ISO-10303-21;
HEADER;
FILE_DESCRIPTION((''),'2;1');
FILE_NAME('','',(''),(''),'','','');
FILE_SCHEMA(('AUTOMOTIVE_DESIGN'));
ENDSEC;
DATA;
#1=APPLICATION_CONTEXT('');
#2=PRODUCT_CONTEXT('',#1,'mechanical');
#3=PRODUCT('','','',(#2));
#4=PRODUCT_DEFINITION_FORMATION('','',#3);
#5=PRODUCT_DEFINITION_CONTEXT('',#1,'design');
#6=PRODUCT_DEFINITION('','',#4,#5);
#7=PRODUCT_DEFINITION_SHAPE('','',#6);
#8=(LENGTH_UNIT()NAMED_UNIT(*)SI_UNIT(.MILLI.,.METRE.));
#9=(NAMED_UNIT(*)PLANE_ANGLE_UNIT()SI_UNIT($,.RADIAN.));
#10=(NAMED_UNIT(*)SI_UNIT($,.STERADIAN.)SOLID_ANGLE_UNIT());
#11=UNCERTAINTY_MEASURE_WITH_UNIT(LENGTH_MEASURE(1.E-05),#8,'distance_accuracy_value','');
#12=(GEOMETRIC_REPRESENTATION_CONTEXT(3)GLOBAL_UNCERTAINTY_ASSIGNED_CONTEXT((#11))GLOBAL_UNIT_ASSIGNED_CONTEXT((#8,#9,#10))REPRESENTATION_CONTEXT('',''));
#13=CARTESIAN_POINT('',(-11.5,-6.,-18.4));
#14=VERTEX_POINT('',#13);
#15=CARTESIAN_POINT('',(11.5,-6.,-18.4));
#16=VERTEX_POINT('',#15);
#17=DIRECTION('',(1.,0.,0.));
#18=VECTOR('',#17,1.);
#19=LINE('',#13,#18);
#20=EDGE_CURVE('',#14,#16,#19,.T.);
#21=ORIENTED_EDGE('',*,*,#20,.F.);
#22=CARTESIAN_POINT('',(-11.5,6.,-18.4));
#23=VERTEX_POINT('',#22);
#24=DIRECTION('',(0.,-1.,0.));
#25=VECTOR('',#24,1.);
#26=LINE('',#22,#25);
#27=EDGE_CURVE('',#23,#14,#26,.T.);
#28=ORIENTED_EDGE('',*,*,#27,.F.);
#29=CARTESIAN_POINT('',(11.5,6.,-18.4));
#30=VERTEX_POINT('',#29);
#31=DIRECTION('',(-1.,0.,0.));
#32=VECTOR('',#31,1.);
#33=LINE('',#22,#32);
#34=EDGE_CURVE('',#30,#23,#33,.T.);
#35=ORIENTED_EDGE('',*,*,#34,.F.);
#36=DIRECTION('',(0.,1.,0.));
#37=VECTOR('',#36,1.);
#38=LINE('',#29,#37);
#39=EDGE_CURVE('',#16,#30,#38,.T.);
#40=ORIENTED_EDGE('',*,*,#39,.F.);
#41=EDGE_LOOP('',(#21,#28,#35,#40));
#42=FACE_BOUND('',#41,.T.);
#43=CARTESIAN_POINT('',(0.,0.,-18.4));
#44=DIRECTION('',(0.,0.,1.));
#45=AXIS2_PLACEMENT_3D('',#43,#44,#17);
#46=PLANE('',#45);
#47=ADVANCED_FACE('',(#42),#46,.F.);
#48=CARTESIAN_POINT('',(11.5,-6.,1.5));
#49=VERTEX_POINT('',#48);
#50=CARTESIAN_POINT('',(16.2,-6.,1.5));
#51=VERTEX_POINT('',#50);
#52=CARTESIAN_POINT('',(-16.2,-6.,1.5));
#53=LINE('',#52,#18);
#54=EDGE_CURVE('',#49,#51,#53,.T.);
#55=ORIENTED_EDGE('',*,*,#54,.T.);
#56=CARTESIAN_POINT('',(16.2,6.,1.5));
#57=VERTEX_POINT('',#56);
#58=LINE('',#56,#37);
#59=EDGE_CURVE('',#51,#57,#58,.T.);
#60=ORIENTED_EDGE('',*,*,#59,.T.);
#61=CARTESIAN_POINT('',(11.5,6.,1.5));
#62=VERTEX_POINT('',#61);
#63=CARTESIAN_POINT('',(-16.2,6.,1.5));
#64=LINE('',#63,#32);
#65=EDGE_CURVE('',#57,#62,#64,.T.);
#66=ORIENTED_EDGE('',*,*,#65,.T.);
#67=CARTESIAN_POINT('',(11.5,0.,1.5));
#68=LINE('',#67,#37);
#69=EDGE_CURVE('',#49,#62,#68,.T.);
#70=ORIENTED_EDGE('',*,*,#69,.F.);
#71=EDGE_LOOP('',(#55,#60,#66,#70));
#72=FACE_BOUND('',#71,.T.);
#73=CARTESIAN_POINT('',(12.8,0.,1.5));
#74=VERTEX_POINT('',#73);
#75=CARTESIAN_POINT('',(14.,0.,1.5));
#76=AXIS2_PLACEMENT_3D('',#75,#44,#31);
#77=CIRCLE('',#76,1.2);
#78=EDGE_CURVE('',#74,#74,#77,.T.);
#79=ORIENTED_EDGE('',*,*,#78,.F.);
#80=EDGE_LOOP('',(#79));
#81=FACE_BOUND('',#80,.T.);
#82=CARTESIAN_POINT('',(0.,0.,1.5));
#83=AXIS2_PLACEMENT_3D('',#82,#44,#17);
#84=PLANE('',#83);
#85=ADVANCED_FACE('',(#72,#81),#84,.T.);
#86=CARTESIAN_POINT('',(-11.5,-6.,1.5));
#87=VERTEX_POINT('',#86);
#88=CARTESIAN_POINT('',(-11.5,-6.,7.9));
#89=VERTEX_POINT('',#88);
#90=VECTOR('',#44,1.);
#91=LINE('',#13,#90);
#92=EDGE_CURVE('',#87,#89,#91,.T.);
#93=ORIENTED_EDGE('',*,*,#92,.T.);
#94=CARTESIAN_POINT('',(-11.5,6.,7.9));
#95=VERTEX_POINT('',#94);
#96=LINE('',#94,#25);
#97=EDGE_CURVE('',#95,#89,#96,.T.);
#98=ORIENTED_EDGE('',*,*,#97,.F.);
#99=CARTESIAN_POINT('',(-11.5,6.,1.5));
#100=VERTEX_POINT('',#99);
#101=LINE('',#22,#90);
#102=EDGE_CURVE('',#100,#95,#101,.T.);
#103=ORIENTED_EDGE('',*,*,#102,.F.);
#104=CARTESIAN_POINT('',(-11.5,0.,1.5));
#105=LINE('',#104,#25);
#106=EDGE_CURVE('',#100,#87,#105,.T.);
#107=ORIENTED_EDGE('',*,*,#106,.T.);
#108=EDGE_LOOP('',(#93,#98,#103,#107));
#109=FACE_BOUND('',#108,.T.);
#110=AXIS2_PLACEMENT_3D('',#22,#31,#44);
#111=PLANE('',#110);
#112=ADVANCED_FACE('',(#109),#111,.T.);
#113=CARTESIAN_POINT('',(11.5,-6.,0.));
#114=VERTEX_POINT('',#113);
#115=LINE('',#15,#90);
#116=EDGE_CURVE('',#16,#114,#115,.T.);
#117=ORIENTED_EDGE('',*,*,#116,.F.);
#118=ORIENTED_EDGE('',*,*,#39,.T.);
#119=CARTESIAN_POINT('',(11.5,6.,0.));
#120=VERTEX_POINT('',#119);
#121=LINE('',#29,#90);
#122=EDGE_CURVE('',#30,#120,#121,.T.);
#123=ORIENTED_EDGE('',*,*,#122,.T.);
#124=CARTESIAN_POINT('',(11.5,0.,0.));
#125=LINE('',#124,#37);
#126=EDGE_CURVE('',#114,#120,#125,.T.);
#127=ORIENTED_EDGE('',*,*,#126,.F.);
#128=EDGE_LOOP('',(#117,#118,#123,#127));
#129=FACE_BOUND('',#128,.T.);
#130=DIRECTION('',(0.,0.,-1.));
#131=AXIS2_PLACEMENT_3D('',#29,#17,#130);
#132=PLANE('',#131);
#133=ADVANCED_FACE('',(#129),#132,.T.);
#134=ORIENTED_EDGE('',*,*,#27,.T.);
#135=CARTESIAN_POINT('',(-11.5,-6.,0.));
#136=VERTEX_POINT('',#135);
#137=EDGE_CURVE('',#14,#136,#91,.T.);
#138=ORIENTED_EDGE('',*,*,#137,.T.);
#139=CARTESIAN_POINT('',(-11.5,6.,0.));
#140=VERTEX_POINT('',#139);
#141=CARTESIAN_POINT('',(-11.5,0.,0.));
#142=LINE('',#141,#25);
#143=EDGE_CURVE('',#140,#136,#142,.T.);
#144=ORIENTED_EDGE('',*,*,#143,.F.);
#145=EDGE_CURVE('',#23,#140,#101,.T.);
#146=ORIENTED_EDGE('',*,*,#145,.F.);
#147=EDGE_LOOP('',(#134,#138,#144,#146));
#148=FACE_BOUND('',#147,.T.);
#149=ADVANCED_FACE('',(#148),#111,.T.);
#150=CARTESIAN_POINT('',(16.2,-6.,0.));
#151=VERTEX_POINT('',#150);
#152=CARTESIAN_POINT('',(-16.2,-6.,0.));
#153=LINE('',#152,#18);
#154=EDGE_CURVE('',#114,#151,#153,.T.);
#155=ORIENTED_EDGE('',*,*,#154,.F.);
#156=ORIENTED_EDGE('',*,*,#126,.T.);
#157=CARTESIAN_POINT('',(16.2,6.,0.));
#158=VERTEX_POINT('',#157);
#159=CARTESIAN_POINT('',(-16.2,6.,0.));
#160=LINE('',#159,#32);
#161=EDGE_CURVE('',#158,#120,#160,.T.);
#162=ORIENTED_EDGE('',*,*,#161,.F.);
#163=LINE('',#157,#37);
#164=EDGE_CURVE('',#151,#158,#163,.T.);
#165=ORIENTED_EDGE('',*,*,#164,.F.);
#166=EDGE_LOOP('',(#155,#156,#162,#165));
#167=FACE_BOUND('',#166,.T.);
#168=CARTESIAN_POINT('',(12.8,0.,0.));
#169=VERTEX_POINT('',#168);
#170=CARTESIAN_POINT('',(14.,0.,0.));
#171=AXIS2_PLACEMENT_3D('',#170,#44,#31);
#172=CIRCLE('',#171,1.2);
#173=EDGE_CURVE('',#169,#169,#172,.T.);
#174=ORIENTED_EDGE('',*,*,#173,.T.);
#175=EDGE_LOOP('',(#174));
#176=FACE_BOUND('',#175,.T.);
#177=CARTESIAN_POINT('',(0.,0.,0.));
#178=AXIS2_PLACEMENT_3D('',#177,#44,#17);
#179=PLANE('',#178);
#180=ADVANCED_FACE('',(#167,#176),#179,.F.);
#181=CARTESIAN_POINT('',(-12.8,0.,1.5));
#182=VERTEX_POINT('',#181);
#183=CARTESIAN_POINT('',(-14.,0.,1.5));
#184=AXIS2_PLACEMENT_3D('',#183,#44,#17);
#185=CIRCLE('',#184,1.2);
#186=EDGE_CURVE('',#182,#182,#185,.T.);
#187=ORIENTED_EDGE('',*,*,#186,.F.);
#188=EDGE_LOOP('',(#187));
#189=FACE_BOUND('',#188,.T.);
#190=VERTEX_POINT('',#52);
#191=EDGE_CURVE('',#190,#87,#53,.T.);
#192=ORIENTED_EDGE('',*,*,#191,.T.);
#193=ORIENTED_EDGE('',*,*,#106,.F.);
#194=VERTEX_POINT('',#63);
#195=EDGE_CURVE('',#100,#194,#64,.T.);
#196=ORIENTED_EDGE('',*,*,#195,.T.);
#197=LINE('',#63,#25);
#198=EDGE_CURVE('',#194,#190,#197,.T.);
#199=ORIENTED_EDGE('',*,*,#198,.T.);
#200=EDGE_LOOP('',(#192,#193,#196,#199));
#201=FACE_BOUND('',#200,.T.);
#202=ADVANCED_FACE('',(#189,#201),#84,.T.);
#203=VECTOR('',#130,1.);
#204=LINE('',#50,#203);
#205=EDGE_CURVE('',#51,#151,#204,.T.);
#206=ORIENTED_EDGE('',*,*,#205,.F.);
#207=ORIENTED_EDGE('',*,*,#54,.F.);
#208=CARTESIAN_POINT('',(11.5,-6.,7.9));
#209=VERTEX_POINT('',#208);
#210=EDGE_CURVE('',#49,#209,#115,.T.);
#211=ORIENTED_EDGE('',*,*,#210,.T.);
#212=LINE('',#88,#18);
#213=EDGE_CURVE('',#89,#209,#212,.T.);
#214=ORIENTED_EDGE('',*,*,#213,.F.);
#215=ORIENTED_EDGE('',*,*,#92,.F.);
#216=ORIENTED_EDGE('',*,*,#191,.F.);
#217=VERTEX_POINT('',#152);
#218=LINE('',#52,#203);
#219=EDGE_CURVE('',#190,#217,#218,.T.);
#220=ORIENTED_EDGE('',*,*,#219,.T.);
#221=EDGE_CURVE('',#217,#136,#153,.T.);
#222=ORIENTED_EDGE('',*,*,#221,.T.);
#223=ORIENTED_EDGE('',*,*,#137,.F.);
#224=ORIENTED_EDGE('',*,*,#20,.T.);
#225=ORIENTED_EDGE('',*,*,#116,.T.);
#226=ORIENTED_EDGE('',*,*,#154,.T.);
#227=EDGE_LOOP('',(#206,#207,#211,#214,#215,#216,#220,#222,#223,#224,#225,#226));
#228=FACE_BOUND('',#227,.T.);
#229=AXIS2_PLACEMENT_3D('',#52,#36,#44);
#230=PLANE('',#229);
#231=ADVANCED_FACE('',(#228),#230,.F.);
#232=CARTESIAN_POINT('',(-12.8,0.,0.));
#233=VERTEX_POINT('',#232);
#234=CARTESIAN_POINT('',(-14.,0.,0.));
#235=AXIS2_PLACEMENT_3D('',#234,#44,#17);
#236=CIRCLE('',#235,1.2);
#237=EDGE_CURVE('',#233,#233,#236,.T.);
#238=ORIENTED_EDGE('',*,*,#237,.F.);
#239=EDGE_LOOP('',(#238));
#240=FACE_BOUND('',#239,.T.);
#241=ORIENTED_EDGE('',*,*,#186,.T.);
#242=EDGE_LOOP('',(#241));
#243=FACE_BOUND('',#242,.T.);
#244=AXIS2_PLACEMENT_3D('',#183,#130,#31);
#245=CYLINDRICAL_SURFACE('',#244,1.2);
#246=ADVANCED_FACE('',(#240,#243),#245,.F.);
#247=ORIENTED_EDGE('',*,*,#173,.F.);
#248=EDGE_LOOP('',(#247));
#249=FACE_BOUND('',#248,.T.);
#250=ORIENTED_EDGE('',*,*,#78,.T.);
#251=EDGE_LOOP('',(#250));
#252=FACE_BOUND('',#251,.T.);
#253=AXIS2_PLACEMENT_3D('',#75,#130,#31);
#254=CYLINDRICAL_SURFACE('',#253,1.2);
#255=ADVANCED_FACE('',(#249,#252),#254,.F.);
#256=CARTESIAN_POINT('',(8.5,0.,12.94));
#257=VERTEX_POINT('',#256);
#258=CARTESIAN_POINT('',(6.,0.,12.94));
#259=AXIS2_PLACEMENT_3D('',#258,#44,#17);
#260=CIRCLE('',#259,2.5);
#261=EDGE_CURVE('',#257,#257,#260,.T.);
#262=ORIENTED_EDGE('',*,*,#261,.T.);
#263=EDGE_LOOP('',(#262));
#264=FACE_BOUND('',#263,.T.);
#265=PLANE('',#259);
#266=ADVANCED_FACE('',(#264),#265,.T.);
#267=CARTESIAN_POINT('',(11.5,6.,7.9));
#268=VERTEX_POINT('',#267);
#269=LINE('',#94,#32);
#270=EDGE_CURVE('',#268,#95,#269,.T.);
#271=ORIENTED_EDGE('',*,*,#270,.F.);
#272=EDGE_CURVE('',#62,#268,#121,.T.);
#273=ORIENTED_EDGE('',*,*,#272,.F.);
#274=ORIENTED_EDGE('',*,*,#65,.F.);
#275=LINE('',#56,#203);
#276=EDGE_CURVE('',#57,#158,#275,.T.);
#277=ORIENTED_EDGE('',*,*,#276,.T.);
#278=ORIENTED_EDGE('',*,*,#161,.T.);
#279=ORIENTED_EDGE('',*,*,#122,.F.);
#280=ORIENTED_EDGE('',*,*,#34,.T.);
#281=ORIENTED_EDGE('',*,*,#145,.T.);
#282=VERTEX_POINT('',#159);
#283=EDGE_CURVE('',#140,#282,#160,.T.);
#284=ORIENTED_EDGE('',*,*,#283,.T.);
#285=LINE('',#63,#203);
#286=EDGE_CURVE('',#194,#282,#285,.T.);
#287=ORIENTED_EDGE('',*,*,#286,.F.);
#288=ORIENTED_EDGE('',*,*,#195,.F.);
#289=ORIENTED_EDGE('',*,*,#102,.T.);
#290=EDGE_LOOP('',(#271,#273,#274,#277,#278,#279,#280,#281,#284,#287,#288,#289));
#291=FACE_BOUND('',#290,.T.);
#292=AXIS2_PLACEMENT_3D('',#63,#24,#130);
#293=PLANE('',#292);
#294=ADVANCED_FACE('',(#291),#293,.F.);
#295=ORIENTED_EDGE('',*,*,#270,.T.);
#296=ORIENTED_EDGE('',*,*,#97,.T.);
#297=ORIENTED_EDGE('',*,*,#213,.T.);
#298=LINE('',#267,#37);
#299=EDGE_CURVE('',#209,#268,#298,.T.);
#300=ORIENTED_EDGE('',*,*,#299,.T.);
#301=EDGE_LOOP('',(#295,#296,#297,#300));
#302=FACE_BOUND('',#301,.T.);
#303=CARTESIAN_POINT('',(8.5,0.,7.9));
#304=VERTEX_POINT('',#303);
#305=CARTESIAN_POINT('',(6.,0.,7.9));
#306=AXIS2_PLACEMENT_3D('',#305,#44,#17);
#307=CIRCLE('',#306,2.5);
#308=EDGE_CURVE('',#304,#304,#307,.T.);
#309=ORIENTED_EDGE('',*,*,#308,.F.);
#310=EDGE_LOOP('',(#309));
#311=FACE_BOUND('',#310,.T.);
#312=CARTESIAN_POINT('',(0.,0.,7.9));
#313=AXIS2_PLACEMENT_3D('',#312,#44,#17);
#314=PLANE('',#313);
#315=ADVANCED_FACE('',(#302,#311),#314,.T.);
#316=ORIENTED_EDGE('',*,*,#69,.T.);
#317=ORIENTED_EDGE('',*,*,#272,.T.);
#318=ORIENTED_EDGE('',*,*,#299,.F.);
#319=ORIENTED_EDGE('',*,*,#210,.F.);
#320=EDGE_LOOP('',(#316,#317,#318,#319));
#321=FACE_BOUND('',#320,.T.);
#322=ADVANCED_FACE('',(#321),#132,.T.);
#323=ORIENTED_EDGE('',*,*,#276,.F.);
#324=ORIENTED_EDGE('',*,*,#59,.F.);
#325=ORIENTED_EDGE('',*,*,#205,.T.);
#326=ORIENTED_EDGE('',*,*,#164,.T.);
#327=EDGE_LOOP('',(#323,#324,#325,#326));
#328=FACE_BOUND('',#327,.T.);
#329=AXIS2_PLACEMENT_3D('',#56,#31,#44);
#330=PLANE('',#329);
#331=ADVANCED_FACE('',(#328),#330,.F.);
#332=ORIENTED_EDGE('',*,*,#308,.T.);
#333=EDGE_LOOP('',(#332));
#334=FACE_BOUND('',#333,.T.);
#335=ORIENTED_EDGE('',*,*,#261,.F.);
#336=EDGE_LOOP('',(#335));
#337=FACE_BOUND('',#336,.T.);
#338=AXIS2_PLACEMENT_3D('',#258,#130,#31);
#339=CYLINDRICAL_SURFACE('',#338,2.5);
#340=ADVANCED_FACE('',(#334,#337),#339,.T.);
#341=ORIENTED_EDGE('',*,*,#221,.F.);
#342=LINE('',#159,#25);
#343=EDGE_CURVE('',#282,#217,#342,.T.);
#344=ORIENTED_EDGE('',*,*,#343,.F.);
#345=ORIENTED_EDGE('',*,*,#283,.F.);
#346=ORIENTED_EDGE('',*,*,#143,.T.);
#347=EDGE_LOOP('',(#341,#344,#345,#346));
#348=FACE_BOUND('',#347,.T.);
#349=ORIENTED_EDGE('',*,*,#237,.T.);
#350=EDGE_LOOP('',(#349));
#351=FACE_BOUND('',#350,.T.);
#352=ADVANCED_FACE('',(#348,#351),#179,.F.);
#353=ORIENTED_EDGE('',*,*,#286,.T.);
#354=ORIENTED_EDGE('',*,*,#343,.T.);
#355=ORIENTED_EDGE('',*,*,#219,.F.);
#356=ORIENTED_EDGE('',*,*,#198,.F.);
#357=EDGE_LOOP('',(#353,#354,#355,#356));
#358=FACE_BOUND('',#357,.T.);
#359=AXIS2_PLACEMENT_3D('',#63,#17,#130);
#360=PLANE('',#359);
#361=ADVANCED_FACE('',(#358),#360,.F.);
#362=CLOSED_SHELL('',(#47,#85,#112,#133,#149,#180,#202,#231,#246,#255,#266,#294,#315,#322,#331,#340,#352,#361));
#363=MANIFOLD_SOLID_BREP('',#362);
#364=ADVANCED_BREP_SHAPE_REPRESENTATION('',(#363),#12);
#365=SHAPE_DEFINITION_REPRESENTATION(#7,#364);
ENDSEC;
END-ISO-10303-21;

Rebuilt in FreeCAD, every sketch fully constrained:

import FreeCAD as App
import Part
import Sketcher
from FreeCAD import Vector
Q = App.Units.Quantity

doc = App.newDocument("Part")
body = doc.addObject("PartDesign::Body", "Body")

sketch1 = body.newObject("Sketcher::SketchObject", "Sketch")
sketch1.AttachmentSupport = (doc.getObject("XY_Plane"), [""])
sketch1.MapMode = "FlatFace"
sketch1.addGeometry(Part.LineSegment(Vector(-16.2, 6, 0), Vector(-16.2, -6, 0)), False)
sketch1.addGeometry(Part.LineSegment(Vector(-16.2, -6, 0), Vector(16.2, -6, 0)), False)
sketch1.addGeometry(Part.LineSegment(Vector(16.2, -6, 0), Vector(16.2, 6, 0)), False)
sketch1.addGeometry(Part.LineSegment(Vector(16.2, 6, 0), Vector(-16.2, 6, 0)), False)
sketch1.addGeometry(Part.Circle(Vector(-14, 0, 0), Vector(0, 0, 1), 1.2), False)
sketch1.addGeometry(Part.Circle(Vector(14, 0, 0), Vector(0, 0, 1), 1.2), False)
sketch1.addConstraint(Sketcher.Constraint("Coincident", 0, 2, 1, 1))
sketch1.addConstraint(Sketcher.Constraint("Coincident", 1, 2, 2, 1))
sketch1.addConstraint(Sketcher.Constraint("Coincident", 2, 2, 3, 1))
sketch1.addConstraint(Sketcher.Constraint("Coincident", 3, 2, 0, 1))
sketch1.addConstraint(Sketcher.Constraint("Vertical", 0))
sketch1.addConstraint(Sketcher.Constraint("Horizontal", 1))
sketch1.addConstraint(Sketcher.Constraint("Vertical", 2))
sketch1.addConstraint(Sketcher.Constraint("Horizontal", 3))
sketch1.addConstraint(Sketcher.Constraint("Equal", 4, 5))
sketch1.addConstraint(Sketcher.Constraint("Symmetric", 4, 3, 5, 3, -1, 1))
sketch1.addConstraint(Sketcher.Constraint("Symmetric", 0, 2, 2, 2, -1, 1))
sketch1.addConstraint(Sketcher.Constraint("PointOnObject", 4, 3, -1))
sketch1.addConstraint(Sketcher.Constraint("Diameter", 4, Q("2.4 mm")))
sketch1.addConstraint(Sketcher.Constraint("DistanceY", 0, 2, 0, 1, Q("12 mm")))
sketch1.addConstraint(Sketcher.Constraint("DistanceX", 1, 1, 1, 2, Q("32.4 mm")))
sketch1.addConstraint(Sketcher.Constraint("DistanceX", 4, 3, -1, 1, Q("14 mm")))
pad1 = body.newObject("PartDesign::Pad", "Pad")
pad1.Profile = sketch1
pad1.Length = 1.5

sketch2 = body.newObject("Sketcher::SketchObject", "Sketch001")
sketch2.AttachmentSupport = (doc.getObject("XY_Plane"), [""])
sketch2.MapMode = "FlatFace"
sketch2.AttachmentOffset = App.Placement(Vector(0, 0, 1.5), App.Rotation())
sketch2.addGeometry(Part.LineSegment(Vector(-12, 6, 0), Vector(-12, -6, 0)), False)
sketch2.addGeometry(Part.LineSegment(Vector(-12, -6, 0), Vector(12, -6, 0)), False)
sketch2.addGeometry(Part.LineSegment(Vector(12, -6, 0), Vector(12, 6, 0)), False)
sketch2.addGeometry(Part.LineSegment(Vector(12, 6, 0), Vector(-12, 6, 0)), False)
sketch2.addConstraint(Sketcher.Constraint("Coincident", 0, 2, 1, 1))
sketch2.addConstraint(Sketcher.Constraint("Coincident", 1, 2, 2, 1))
sketch2.addConstraint(Sketcher.Constraint("Coincident", 2, 2, 3, 1))
sketch2.addConstraint(Sketcher.Constraint("Coincident", 3, 2, 0, 1))
sketch2.addConstraint(Sketcher.Constraint("Vertical", 0))
sketch2.addConstraint(Sketcher.Constraint("Horizontal", 1))
sketch2.addConstraint(Sketcher.Constraint("Vertical", 2))
sketch2.addConstraint(Sketcher.Constraint("Horizontal", 3))
sketch2.addConstraint(Sketcher.Constraint("Symmetric", 0, 2, 2, 2, -1, 1))
sketch2.addConstraint(Sketcher.Constraint("DistanceX", 1, 1, 1, 2, Q("23 mm")))
sketch2.addConstraint(Sketcher.Constraint("DistanceY", 0, 2, 0, 1, Q("12 mm")))
pad2 = body.newObject("PartDesign::Pad", "Pad001")
pad2.Profile = sketch2
pad2.Type = "TwoLengths"
pad2.Length = 6.4
pad2.Length2 = 19.9

sketch3 = body.newObject("Sketcher::SketchObject", "Sketch002")
sketch3.AttachmentSupport = (doc.getObject("XY_Plane"), [""])
sketch3.MapMode = "FlatFace"
sketch3.AttachmentOffset = App.Placement(Vector(0, 0, 7.9), App.Rotation())
sketch3.addGeometry(Part.Circle(Vector(6, 0, 0), Vector(0, 0, 1), 2.5), False)
sketch3.addConstraint(Sketcher.Constraint("PointOnObject", 0, 3, -1))
sketch3.addConstraint(Sketcher.Constraint("Diameter", 0, Q("5 mm")))
sketch3.addConstraint(Sketcher.Constraint("DistanceX", -1, 1, 0, 3, Q("6 mm")))
pad3 = body.newObject("PartDesign::Pad", "Pad002")
pad3.Profile = sketch3
pad3.Length = 5.04

doc.recompute()
